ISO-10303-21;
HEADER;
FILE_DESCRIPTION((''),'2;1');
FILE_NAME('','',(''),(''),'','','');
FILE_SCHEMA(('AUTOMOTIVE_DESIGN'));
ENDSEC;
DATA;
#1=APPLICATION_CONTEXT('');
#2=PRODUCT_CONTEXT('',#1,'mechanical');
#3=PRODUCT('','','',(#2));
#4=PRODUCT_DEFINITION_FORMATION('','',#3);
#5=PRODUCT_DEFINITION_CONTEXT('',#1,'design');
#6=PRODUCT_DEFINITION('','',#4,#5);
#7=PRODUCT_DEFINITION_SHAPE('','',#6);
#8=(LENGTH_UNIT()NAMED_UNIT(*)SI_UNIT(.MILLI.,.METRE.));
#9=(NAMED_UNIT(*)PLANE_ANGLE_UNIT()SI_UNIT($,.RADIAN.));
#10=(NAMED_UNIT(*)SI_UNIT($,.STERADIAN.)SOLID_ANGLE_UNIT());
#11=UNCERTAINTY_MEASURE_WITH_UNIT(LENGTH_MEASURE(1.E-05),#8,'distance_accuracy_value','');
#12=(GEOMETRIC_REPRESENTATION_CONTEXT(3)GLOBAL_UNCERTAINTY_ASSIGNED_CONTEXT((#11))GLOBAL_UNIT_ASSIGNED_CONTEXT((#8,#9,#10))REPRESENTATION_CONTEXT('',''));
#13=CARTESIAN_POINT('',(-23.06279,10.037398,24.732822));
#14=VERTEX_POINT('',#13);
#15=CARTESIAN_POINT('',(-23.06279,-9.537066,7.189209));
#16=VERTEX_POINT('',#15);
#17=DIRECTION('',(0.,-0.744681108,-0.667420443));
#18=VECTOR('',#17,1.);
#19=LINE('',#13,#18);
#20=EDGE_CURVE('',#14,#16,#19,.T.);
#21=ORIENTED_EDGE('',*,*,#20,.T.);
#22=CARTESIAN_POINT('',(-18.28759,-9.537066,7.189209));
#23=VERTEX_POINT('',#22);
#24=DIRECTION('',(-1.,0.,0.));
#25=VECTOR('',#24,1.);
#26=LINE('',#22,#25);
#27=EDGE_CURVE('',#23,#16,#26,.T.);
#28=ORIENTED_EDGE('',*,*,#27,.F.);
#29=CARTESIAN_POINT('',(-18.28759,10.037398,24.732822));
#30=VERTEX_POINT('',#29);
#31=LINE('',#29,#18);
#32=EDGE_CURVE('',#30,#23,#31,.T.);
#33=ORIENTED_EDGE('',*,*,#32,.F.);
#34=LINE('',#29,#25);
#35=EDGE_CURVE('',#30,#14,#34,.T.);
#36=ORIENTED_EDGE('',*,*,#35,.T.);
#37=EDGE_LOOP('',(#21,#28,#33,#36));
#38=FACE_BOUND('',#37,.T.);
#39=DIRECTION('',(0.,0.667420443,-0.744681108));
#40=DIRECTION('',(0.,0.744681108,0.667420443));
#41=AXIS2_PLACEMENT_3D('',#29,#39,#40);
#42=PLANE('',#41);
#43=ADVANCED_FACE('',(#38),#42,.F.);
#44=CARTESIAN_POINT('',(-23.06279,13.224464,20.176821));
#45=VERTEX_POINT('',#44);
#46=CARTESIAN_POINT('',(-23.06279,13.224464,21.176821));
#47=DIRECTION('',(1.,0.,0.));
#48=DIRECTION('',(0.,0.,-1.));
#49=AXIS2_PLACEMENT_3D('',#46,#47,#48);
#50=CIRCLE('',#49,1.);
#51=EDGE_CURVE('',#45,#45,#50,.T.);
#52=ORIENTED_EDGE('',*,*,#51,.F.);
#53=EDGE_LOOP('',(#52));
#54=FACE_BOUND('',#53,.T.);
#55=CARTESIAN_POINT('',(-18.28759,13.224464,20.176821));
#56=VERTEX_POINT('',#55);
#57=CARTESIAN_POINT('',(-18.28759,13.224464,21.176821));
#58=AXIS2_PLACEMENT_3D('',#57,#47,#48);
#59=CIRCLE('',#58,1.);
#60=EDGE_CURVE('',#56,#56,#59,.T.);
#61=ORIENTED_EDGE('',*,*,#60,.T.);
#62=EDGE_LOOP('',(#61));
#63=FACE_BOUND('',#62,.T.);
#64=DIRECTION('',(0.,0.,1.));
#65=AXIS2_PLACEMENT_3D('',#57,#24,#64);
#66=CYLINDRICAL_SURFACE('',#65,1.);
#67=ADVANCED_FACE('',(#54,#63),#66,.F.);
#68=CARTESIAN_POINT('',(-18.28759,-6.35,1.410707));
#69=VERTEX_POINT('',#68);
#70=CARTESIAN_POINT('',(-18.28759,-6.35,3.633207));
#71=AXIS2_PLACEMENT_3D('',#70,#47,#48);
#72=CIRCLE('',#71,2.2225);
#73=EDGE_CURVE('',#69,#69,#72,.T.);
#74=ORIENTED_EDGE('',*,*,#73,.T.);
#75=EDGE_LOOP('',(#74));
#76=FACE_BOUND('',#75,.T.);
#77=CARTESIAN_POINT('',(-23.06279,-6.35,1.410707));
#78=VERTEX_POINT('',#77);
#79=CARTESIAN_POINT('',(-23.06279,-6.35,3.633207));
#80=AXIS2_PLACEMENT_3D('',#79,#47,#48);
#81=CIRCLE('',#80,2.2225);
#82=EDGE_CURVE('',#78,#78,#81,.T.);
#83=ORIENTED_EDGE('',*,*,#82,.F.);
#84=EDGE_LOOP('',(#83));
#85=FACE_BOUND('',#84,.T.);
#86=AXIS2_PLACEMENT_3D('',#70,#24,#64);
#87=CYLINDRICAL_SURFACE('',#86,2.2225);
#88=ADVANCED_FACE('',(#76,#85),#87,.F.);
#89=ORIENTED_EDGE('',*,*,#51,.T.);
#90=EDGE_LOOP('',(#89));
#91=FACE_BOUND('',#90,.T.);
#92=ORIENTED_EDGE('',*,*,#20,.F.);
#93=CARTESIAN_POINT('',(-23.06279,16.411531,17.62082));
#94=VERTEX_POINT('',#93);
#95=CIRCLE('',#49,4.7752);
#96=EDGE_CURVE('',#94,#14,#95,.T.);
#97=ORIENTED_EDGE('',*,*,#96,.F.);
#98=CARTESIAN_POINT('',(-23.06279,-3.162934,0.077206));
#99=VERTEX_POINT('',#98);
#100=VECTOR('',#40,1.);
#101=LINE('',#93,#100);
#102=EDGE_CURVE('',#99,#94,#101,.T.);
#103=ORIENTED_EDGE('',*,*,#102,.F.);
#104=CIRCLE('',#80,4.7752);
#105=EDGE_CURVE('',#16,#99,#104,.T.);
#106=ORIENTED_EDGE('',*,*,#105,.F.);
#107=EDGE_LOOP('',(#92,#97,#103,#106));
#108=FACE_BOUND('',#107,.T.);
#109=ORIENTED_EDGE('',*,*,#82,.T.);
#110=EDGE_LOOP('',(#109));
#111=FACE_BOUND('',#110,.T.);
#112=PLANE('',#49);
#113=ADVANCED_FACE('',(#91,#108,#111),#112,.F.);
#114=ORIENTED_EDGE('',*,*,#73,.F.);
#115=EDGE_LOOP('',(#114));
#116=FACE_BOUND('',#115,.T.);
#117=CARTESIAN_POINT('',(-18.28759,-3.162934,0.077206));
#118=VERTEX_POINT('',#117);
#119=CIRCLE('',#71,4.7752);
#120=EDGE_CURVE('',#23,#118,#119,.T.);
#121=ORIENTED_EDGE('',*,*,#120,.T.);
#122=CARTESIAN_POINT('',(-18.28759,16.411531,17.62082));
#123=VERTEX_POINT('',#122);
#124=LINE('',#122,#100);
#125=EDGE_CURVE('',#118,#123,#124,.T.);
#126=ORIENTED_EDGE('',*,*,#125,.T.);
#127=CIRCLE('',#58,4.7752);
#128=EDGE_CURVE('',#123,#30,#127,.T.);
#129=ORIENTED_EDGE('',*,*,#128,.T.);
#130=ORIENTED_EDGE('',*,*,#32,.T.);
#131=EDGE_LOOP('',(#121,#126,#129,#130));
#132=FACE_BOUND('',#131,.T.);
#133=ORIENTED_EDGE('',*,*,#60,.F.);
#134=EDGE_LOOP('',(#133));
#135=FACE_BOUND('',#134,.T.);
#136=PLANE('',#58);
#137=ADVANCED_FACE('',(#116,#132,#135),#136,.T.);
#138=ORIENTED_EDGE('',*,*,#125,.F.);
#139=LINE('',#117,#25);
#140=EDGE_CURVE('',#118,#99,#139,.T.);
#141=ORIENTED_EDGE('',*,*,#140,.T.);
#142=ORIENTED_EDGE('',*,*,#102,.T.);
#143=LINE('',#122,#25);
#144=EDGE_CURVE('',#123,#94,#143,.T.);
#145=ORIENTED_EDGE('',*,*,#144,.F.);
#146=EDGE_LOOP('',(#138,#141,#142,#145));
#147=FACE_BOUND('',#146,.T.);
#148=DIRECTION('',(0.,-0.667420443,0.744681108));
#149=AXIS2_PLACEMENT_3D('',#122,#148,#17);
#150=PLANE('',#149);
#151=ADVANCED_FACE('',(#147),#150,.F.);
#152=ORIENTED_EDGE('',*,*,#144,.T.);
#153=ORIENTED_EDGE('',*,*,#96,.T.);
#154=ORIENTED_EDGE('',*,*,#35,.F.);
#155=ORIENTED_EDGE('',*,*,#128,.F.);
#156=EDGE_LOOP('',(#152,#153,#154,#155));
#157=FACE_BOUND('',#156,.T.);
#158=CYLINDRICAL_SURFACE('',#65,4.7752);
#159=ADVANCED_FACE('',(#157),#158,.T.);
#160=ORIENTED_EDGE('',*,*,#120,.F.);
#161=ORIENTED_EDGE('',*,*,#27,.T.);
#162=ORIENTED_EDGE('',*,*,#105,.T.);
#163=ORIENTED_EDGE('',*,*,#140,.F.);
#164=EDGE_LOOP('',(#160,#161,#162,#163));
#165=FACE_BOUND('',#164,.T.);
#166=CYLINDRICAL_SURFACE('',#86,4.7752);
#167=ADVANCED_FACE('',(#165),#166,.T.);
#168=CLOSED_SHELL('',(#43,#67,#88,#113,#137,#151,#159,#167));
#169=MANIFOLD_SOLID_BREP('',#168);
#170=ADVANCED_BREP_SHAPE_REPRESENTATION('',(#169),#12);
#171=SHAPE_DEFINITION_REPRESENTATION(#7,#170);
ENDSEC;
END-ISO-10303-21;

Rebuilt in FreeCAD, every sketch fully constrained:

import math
import FreeCAD as App
import Part
import Sketcher
Q = App.Units.Quantity

doc = App.newDocument("Part")
params = doc.addObject("Spreadsheet::Sheet", "Params")
for row, (alias, value) in enumerate([
    ("sketch1_diameter", "0.175 in"),
    ("sketch1_radius", "0.188 in"),
    ("pad1_length", "0.188 in"),
], start=1):
    params.set(f"A{row}", alias)
    params.set(f"B{row}", "=" + value)
    params.setAlias(f"B{row}", alias)

body = doc.addObject("PartDesign::Body", "Body")

sketch1 = body.newObject("Sketcher::SketchObject", "Sketch")
sketch1.AttachmentSupport = (doc.getObject("YZ_Plane"), [""])
sketch1.MapMode = "FlatFace"
sketch1.AttachmentOffset = App.Placement(App.Vector(0, 0, -23.06279), App.Rotation())
sketch1.addGeometry(Part.LineSegment(App.Vector(-3.2, 0.1, 0), App.Vector(16.4, 17.6, 0)), False)
sketch1.addGeometry(Part.ArcOfCircle(Part.Circle(App.Vector(13.2, 21.2, 0), App.Vector(0, 0, 1), 4.8), math.radians(-48), math.radians(132)), False)
sketch1.addGeometry(Part.LineSegment(App.Vector(10, 24.7, 0), App.Vector(-9.5, 7.2, 0)), False)
sketch1.addGeometry(Part.ArcOfCircle(Part.Circle(App.Vector(-6.3, 3.6, 0), App.Vector(0, 0, 1), 4.8), math.radians(132), math.radians(312)), False)
sketch1.addGeometry(Part.Circle(App.Vector(-6.3, 3.6, 0), App.Vector(0, 0, 1), 2.2), False)
sketch1.addGeometry(Part.Circle(App.Vector(13.2, 21.2, 0), App.Vector(0, 0, 1), 1), False)
sketch1.addConstraint(Sketcher.Constraint("Tangent", 0, 2, 1, 1))
sketch1.addConstraint(Sketcher.Constraint("Tangent", 1, 2, 2, 1))
sketch1.addConstraint(Sketcher.Constraint("Tangent", 2, 2, 3, 1))
sketch1.addConstraint(Sketcher.Constraint("Tangent", 3, 2, 0, 1))
sketch1.addConstraint(Sketcher.Constraint("Coincident", 4, 3, 3, 3))
sketch1.addConstraint(Sketcher.Constraint("Coincident", 5, 3, 1, 3))
sketch1.addConstraint(Sketcher.Constraint("Equal", 1, 3))
sketch1.addConstraint(Sketcher.Constraint("Diameter", 4, Q("0.175 in")))
sketch1.addConstraint(Sketcher.Constraint("Radius", 1, Q("0.188 in")))
sketch1.addConstraint(Sketcher.Constraint("Diameter", 5, Q("2 mm")))
sketch1.addConstraint(Sketcher.Constraint("DistanceX", 3, 3, -1, 1, Q("0.25 in")))
sketch1.addConstraint(Sketcher.Constraint("DistanceY", 0, 2, 1, 3, Q("0.14 in")))
sketch1.addConstraint(Sketcher.Constraint("Distance", 0, Q("26.2857 mm")))
sketch1.addConstraint(Sketcher.Constraint("DistanceY", -1, 1, 1, 3, Q("21.176821 mm")))
sketch1.setExpression("Constraints[7]", "Params.sketch1_diameter")
sketch1.setExpression("Constraints[8]", "Params.sketch1_radius")
pad1 = body.newObject("PartDesign::Pad", "Pad")
pad1.Profile = sketch1
pad1.setExpression("Length", "Params.pad1_length")

doc.recompute()
